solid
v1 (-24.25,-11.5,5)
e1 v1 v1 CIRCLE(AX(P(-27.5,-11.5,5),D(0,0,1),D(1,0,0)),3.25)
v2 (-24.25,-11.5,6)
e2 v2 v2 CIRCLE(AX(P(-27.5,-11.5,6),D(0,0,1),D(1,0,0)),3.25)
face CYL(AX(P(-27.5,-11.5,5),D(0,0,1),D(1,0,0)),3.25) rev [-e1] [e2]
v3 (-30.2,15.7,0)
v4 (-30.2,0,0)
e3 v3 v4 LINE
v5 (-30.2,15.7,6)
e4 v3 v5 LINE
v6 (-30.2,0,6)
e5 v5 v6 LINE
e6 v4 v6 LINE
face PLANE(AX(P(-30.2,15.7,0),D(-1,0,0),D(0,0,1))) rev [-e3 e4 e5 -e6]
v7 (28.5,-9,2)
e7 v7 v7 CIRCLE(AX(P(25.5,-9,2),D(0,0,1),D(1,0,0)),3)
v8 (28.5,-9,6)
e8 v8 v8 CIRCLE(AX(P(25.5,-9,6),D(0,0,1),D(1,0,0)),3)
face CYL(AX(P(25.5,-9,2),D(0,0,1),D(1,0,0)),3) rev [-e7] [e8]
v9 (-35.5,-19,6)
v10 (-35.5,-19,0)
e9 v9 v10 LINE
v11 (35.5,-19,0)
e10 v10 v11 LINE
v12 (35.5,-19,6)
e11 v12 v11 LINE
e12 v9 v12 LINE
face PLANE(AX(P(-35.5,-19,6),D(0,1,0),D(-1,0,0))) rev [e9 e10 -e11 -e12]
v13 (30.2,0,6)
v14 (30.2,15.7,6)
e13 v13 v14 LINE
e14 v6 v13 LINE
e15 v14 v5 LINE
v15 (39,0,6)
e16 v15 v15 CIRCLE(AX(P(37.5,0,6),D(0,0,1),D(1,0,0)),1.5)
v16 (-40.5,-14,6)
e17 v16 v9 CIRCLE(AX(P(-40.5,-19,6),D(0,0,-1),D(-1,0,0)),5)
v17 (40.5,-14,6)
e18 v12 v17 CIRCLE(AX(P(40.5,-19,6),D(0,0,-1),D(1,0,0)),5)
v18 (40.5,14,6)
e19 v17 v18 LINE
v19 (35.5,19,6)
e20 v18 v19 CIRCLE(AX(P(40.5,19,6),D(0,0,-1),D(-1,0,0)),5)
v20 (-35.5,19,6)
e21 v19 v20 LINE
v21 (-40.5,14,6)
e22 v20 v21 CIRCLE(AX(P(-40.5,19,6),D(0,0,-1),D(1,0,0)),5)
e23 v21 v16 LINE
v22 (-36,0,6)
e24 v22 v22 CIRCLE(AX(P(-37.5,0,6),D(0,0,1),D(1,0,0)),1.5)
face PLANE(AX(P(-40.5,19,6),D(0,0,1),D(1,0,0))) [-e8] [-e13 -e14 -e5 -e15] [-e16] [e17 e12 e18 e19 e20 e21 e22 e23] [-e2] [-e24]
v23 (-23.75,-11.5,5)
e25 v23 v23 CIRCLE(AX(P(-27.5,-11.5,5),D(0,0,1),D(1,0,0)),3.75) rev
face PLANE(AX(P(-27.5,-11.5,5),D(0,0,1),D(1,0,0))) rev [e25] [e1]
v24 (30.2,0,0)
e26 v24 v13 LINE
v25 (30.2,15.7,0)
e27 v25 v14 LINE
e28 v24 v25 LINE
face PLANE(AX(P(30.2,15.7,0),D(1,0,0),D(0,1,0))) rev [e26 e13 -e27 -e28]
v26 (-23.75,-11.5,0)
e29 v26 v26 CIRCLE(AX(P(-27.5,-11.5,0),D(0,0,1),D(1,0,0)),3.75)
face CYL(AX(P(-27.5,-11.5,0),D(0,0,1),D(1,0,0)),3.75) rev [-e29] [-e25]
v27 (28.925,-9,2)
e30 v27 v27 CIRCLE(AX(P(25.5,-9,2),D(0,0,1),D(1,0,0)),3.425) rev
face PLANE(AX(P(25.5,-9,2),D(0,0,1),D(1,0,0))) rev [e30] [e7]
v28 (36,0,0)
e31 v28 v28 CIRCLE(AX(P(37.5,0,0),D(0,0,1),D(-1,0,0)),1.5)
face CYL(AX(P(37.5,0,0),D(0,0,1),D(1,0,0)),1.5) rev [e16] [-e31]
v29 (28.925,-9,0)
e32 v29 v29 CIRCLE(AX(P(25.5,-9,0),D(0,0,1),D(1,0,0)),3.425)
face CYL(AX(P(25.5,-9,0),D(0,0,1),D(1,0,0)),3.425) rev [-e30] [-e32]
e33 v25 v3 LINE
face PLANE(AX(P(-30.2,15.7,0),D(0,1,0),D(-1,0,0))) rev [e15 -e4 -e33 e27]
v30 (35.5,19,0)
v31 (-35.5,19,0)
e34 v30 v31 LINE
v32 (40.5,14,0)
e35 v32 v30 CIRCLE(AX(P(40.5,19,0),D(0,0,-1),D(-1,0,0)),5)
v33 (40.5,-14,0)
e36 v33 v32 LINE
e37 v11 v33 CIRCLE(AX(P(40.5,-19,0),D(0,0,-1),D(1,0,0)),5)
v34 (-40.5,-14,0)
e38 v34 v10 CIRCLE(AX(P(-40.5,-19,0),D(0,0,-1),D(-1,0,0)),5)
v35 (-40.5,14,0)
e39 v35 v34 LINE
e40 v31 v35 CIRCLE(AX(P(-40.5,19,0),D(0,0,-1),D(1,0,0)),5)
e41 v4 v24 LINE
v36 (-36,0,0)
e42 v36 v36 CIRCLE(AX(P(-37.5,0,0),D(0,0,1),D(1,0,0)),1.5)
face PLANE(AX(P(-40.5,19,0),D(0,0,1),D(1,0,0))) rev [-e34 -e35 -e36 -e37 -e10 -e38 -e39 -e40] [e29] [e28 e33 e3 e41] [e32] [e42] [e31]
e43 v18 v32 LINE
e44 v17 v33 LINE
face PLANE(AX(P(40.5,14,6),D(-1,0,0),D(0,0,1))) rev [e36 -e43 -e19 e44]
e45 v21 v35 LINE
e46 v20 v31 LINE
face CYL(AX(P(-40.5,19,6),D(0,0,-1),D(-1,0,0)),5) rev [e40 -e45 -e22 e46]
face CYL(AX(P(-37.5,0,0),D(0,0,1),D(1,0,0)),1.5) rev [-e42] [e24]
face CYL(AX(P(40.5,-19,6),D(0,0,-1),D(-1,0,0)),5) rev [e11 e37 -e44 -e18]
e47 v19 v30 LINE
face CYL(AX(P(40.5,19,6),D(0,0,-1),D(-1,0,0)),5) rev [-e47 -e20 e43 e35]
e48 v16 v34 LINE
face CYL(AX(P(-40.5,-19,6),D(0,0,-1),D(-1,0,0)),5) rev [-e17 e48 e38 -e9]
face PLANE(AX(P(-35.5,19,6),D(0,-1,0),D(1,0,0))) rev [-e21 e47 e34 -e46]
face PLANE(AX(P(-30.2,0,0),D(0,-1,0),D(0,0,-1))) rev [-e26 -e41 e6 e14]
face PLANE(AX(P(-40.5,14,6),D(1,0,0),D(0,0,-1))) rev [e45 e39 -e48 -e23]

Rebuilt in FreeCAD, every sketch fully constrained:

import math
import FreeCAD as App
import Part
import Sketcher


def add_polygon(sketch, points):
    """Adds a closed chain of lines whose ends are joined by coincident constraints."""
    first, n = sketch.GeometryCount, len(points)
    for a, b in zip(points, points[1:] + points[:1]):
        sketch.addGeometry(Part.LineSegment(App.Vector(*a, 0), App.Vector(*b, 0)), False)
    for i in range(n):
        sketch.addConstraint(Sketcher.Constraint("Coincident", first + i, 2, first + (i + 1) % n, 1))

doc = App.newDocument("Part")
body = doc.addObject("PartDesign::Body", "Body")

# Sketch on XY plane
sketch1 = doc.addObject("Sketcher::SketchObject", "Sketch")
body.addObject(sketch1)
sketch1.AttachmentSupport = (doc.XY_Plane, [""])
sketch1.MapMode = "FlatFace"
sketch1.addGeometry([
    Part.LineSegment(App.Vector(36, 19, 0), App.Vector(-36, 19, 0)),  # 0
    Part.ArcOfCircle(Part.Circle(App.Vector(-40, 19, 0), App.Vector(0, 0, 1), 5), math.radians(-90), math.radians(0)),  # 1
    Part.LineSegment(App.Vector(-40, 14, 0), App.Vector(-40, -14, 0)),  # 2
    Part.ArcOfCircle(Part.Circle(App.Vector(-40, -19, 0), App.Vector(0, 0, 1), 5), math.radians(0), math.radians(90)),  # 3
    Part.LineSegment(App.Vector(-36, -19, 0), App.Vector(36, -19, 0)),  # 4
    Part.ArcOfCircle(Part.Circle(App.Vector(40, -19, 0), App.Vector(0, 0, 1), 5), math.radians(90), math.radians(180)),  # 5
    Part.LineSegment(App.Vector(40, -14, 0), App.Vector(40, 14, 0)),  # 6
    Part.ArcOfCircle(Part.Circle(App.Vector(40, 19, 0), App.Vector(0, 0, 1), 5), math.radians(180), math.radians(270)),  # 7
], False)
sketch1.addConstraint([
    Sketcher.Constraint("Coincident", 0, 2, 1, 2),
    Sketcher.Constraint("Coincident", 1, 1, 2, 1),
    Sketcher.Constraint("Coincident", 2, 2, 3, 2),
    Sketcher.Constraint("Coincident", 3, 1, 4, 1),
    Sketcher.Constraint("Coincident", 4, 2, 5, 2),
    Sketcher.Constraint("Coincident", 5, 1, 6, 1),
    Sketcher.Constraint("Coincident", 6, 2, 7, 2),
    Sketcher.Constraint("Coincident", 7, 1, 0, 1),
    Sketcher.Constraint("Horizontal", 0),
    Sketcher.Constraint("Vertical", 2),
    Sketcher.Constraint("Horizontal", 4),
    Sketcher.Constraint("Vertical", 6),
    Sketcher.Constraint("Equal", 1, 3),
    Sketcher.Constraint("Equal", 3, 5),
    Sketcher.Constraint("Equal", 5, 7),
    Sketcher.Constraint("Symmetric", 1, 3, 5, 3, -1, 1),
    Sketcher.Constraint("Symmetric", 3, 3, 7, 3, -1, 1),
    Sketcher.Constraint("Symmetric", 3, 3, 5, 3, -2),
    Sketcher.Constraint("Horizontal", 7, 3, 0, 2),
    Sketcher.Constraint("Horizontal", 5, 3, 3, 1),
    Sketcher.Constraint("Vertical", 3, 3, 1, 1),
    Sketcher.Constraint("Vertical", 7, 3, 5, 1),
    Sketcher.Constraint("Radius", 1, 5.0),
    Sketcher.Constraint("DistanceX", 0, 2, 0, 1, 71.0),
    Sketcher.Constraint("DistanceY", 2, 2, 2, 1, 28.0),
])
pad1 = doc.addObject("PartDesign::Pad", "Pad")
body.addObject(pad1)
pad1.Profile = sketch1
pad1.Length = 6

# Sketch on XY plane
sketch2 = doc.addObject("Sketcher::SketchObject", "Sketch001")
body.addObject(sketch2)
sketch2.AttachmentSupport = (doc.XY_Plane, [""])
sketch2.MapMode = "FlatFace"
sketch2.AttachmentOffset = App.Placement(App.Vector(0, 0, 6), App.Rotation())
sketch2.addGeometry([
    Part.Circle(App.Vector(-37.5, 0, 0), App.Vector(0, 0, 1), 1.5),
    Part.Circle(App.Vector(37.5, 0, 0), App.Vector(0, 0, 1), 1.5),
], False)
sketch2.addConstraint([
    Sketcher.Constraint("Equal", 0, 1),
    Sketcher.Constraint("Symmetric", 0, 3, 1, 3, -1, 1),
    Sketcher.Constraint("PointOnObject", 0, 3, -1),
    Sketcher.Constraint("Diameter", 0, 3.0),
    Sketcher.Constraint("DistanceX", 0, 3, 1, 3, 75.0),
])
pocket1 = doc.addObject("PartDesign::Pocket", "Pocket")
body.addObject(pocket1)
pocket1.Profile = sketch2
pocket1.Type = "ThroughAll"
pocket1.Midplane = True

# Sketch on XY plane
sketch3 = doc.addObject("Sketcher::SketchObject", "Sketch002")
body.addObject(sketch3)
sketch3.AttachmentSupport = (doc.XY_Plane, [""])
sketch3.MapMode = "FlatFace"
sketch3.AttachmentOffset = App.Placement(App.Vector(0, 0, 6), App.Rotation())
add_polygon(sketch3, [(-30, 16), (-30, 0), (30, 0), (30, 16)])  # lines 0-3
sketch3.addConstraint([
    Sketcher.Constraint("Vertical", 0),
    Sketcher.Constraint("Horizontal", 1),
    Sketcher.Constraint("Vertical", 2),
    Sketcher.Constraint("Horizontal", 3),
    Sketcher.Constraint("Symmetric", 0, 2, 1, 2, -1, 1),
    Sketcher.Constraint("DistanceX", 1, 1, 1, 2, 60.4),
    Sketcher.Constraint("DistanceY", 0, 2, 0, 1, 15.7),
])
pocket2 = doc.addObject("PartDesign::Pocket", "Pocket001")
body.addObject(pocket2)
pocket2.Profile = sketch3
pocket2.Type = "ThroughAll"
pocket2.Midplane = True

# Sketch on XY plane
sketch4 = doc.addObject("Sketcher::SketchObject", "Sketch003")
body.addObject(sketch4)
sketch4.AttachmentSupport = (doc.XY_Plane, [""])
sketch4.MapMode = "FlatFace"
sketch4.AttachmentOffset = App.Placement(App.Vector(0, 0, 6), App.Rotation())
sketch4.addGeometry(Part.Circle(App.Vector(-27.5, -11.5, 0), App.Vector(0, 0, 1), 3.8), False)
sketch4.addConstraint([
    Sketcher.Constraint("Diameter", 0, 7.5),
    Sketcher.Constraint("DistanceX", 0, 3, -1, 1, 27.5),
    Sketcher.Constraint("DistanceY", 0, 3, -1, 1, 11.5),
])
pocket3 = doc.addObject("PartDesign::Pocket", "Pocket002")
body.addObject(pocket3)
pocket3.Profile = sketch4
pocket3.Type = "ThroughAll"
pocket3.Midplane = True

# Sketch on XY plane
sketch5 = doc.addObject("Sketcher::SketchObject", "Sketch004")
body.addObject(sketch5)
sketch5.AttachmentSupport = (doc.XY_Plane, [""])
sketch5.MapMode = "FlatFace"
sketch5.AttachmentOffset = App.Placement(App.Vector(0, 0, 6), App.Rotation())
sketch5.addGeometry([
    Part.Circle(App.Vector(-27.5, -11.5, 0), App.Vector(0, 0, 1), 4),
    Part.Circle(App.Vector(-27.5, -11.5, 0), App.Vector(0, 0, 1), 3.2),
], False)
sketch5.addConstraint([
    Sketcher.Constraint("Coincident", 1, 3, 0, 3),
    Sketcher.Constraint("Diameter", 0, 8.0),
    Sketcher.Constraint("Diameter", 1, 6.5),
    Sketcher.Constraint("DistanceX", 0, 3, -1, 1, 27.5),
    Sketcher.Constraint("DistanceY", 0, 3, -1, 1, 11.5),
])
pad2 = doc.addObject("PartDesign::Pad", "Pad001")
body.addObject(pad2)
pad2.Profile = sketch5
pad2.Length = 1
pad2.Reversed = True

# Sketch on XY plane
sketch6 = doc.addObject("Sketcher::SketchObject", "Sketch005")
body.addObject(sketch6)
sketch6.AttachmentSupport = (doc.XY_Plane, [""])
sketch6.MapMode = "FlatFace"
sketch6.AttachmentOffset = App.Placement(App.Vector(0, 0, 6), App.Rotation())
sketch6.addGeometry(Part.Circle(App.Vector(25.5, -9, 0), App.Vector(0, 0, 1), 3.4), False)
sketch6.addConstraint([
    Sketcher.Constraint("Diameter", 0, 6.85),
    Sketcher.Constraint("DistanceY", 0, 3, -1, 1, 9.0),
    Sketcher.Constraint("DistanceX", -1, 1, 0, 3, 25.5),
])
pocket4 = doc.addObject("PartDesign::Pocket", "Pocket003")
body.addObject(pocket4)
pocket4.Profile = sketch6
pocket4.Type = "ThroughAll"
pocket4.Midplane = True

# Sketch on XY plane
sketch7 = doc.addObject("Sketcher::SketchObject", "Sketch006")
body.addObject(sketch7)
sketch7.AttachmentSupport = (doc.XY_Plane, [""])
sketch7.MapMode = "FlatFace"
sketch7.AttachmentOffset = App.Placement(App.Vector(0, 0, 6), App.Rotation())
sketch7.addGeometry([
    Part.Circle(App.Vector(25.5, -9, 0), App.Vector(0, 0, 1), 3.5),
    Part.Circle(App.Vector(25.5, -9, 0), App.Vector(0, 0, 1), 3),
], False)
sketch7.addConstraint([
    Sketcher.Constraint("Coincident", 1, 3, 0, 3),
    Sketcher.Constraint("Diameter", 0, 7.0),
    Sketcher.Constraint("Diameter", 1, 6.0),
    Sketcher.Constraint("DistanceY", 0, 3, -1, 1, 9.0),
    Sketcher.Constraint("DistanceX", -1, 1, 0, 3, 25.5),
])
pad3 = doc.addObject("PartDesign::Pad", "Pad002")
body.addObject(pad3)
pad3.Profile = sketch7
pad3.Length = 4
pad3.Reversed = True

doc.recompute()
